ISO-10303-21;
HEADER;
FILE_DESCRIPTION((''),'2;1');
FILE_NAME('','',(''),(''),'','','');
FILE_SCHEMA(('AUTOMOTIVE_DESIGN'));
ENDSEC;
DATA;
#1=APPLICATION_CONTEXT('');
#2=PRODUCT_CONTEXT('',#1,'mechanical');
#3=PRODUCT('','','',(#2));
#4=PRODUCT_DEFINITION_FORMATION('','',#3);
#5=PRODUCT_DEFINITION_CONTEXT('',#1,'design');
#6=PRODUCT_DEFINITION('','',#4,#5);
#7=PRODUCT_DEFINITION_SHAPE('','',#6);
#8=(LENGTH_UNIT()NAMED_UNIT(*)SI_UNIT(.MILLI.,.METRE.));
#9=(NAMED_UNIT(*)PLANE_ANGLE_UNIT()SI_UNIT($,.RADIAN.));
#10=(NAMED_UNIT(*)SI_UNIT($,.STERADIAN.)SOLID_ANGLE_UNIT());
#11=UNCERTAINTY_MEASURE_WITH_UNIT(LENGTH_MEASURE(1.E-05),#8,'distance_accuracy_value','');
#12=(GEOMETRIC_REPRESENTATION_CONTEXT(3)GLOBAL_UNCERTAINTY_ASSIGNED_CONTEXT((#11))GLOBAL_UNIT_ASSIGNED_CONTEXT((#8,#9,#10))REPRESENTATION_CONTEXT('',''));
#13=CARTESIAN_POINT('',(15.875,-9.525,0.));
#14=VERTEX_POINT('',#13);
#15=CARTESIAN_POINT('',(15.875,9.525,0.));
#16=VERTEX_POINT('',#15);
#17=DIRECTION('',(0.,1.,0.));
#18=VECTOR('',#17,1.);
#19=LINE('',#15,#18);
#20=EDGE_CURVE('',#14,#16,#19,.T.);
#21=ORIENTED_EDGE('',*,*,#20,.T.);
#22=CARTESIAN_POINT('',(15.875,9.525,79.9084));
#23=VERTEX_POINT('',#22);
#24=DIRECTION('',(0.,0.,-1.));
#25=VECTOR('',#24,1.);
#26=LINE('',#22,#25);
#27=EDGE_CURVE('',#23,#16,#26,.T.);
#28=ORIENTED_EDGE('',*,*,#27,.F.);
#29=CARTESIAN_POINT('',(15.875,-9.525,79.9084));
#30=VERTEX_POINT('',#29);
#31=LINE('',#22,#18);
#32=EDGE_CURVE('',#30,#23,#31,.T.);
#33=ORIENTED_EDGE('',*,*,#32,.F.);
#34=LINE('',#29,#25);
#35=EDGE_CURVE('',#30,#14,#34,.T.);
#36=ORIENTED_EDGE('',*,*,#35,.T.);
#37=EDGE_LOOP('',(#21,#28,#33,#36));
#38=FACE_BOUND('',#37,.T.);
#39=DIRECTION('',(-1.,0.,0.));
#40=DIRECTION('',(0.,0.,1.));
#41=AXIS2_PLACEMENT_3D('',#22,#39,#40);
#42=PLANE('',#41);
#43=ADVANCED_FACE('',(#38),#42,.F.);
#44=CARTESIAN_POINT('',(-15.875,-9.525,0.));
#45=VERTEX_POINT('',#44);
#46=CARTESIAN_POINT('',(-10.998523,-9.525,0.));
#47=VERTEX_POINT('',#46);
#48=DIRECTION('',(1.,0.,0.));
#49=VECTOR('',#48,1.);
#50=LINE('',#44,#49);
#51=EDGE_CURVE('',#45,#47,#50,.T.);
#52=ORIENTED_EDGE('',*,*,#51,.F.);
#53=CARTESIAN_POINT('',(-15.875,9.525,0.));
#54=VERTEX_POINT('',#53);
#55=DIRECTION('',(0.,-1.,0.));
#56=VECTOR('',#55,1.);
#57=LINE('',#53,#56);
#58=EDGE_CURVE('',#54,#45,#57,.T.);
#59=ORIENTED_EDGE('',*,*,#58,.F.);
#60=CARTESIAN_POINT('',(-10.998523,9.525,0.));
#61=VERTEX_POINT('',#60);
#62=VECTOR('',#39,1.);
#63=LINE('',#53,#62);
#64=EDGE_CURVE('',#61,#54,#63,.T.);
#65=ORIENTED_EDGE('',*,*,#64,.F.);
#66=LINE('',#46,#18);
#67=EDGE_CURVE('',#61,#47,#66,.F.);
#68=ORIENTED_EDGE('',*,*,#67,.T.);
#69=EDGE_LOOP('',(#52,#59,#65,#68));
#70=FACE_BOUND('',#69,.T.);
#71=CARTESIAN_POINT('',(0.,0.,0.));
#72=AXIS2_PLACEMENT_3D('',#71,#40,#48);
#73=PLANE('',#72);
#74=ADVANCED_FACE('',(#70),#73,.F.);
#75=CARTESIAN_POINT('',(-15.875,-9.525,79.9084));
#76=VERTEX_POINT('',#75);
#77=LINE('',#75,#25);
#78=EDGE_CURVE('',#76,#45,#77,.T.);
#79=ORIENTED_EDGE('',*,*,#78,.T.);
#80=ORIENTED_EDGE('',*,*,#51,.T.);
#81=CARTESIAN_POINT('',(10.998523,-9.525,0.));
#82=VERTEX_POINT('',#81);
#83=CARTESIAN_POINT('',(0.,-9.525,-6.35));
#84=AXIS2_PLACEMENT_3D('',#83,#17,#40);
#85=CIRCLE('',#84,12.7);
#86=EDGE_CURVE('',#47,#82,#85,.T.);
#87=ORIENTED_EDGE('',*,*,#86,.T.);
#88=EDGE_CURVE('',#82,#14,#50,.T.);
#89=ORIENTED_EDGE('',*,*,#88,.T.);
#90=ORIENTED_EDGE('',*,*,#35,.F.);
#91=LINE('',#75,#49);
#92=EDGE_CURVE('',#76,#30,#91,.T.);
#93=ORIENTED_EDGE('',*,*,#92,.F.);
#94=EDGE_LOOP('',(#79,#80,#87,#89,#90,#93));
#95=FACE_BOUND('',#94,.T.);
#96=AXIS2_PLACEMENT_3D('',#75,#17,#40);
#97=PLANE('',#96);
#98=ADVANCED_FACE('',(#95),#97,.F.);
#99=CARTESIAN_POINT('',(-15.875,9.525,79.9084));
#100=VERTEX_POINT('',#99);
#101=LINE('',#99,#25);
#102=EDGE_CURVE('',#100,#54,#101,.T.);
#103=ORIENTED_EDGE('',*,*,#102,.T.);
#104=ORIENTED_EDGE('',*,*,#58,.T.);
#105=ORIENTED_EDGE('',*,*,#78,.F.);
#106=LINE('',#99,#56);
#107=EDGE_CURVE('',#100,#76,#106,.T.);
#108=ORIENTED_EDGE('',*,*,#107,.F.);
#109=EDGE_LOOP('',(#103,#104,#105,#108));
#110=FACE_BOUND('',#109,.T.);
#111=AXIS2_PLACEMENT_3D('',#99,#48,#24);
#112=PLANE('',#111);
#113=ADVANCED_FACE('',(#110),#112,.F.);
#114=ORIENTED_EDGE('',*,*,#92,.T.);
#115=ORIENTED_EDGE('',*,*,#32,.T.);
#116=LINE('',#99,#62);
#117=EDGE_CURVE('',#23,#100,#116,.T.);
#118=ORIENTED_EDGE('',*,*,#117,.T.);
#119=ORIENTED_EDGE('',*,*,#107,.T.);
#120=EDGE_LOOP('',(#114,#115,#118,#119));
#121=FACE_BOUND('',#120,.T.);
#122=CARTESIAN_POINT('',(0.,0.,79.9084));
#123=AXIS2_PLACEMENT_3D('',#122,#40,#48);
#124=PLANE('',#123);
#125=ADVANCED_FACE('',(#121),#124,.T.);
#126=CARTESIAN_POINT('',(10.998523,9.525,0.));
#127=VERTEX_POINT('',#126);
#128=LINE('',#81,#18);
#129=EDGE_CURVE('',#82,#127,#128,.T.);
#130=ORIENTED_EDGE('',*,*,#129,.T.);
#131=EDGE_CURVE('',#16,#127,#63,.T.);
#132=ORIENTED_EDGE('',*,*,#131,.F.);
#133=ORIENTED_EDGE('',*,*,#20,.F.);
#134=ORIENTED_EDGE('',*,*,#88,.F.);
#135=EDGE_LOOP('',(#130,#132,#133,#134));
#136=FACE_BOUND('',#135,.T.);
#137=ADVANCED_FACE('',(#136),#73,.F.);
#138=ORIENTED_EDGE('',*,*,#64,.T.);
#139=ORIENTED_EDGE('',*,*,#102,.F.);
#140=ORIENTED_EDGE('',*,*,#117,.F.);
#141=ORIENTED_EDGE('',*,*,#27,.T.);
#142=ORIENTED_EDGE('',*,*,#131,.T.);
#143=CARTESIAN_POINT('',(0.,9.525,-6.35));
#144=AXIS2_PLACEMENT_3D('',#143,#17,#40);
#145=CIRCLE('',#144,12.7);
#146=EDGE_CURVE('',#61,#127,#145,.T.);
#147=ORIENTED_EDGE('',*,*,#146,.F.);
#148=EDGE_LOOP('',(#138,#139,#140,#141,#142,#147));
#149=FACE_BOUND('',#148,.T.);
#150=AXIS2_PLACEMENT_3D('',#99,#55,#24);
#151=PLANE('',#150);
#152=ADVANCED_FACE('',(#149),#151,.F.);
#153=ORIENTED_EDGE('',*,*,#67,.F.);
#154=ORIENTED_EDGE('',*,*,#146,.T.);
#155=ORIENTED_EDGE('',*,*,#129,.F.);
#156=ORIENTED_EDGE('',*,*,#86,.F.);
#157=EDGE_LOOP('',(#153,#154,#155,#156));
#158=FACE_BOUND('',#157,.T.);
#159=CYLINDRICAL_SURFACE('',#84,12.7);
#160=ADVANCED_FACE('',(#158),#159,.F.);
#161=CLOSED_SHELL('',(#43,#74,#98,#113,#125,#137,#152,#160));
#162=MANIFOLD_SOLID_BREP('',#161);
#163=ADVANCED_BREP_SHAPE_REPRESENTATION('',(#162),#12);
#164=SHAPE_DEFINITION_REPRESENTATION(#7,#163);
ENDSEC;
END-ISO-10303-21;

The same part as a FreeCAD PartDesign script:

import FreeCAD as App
import Part
import Sketcher

V = App.Vector
Q = App.Units.Quantity

doc = App.newDocument("Part")
body = doc.addObject("PartDesign::Body", "Body")

# Sketch on XY plane
sketch1 = body.newObject("Sketcher::SketchObject", "Sketch")
sketch1.AttachmentSupport = (doc.getObject("XY_Plane"), [""])
sketch1.MapMode = "FlatFace"
sketch1.addGeometry([
    Part.LineSegment(V(-16, 10, 0), V(-16, -10, 0)),
    Part.LineSegment(V(-16, -10, 0), V(16, -10, 0)),
    Part.LineSegment(V(16, -10, 0), V(16, 10, 0)),
    Part.LineSegment(V(16, 10, 0), V(-16, 10, 0)),
], False)
sketch1.addConstraint([
    Sketcher.Constraint("Coincident", 0, 2, 1, 1),
    Sketcher.Constraint("Coincident", 1, 2, 2, 1),
    Sketcher.Constraint("Coincident", 2, 2, 3, 1),
    Sketcher.Constraint("Coincident", 3, 2, 0, 1),
    Sketcher.Constraint("Vertical", 0),
    Sketcher.Constraint("Horizontal", 1),
    Sketcher.Constraint("Vertical", 2),
    Sketcher.Constraint("Horizontal", 3),
    Sketcher.Constraint("Symmetric", 0, 2, 2, 2, -1, 1),
    Sketcher.Constraint("DistanceX", 1, 1, 1, 2, Q("1.25 in")),
    Sketcher.Constraint("DistanceY", 0, 2, 0, 1, Q("0.75 in")),
])
pad1 = body.newObject("PartDesign::Pad", "Pad")
pad1.Profile = sketch1
pad1.Length = Q("3.146 in")

# Sketch on XZ plane
sketch2 = body.newObject("Sketcher::SketchObject", "Sketch001")
sketch2.AttachmentSupport = (doc.getObject("XZ_Plane"), [""])
sketch2.MapMode = "FlatFace"
sketch2.AttachmentOffset = App.Placement(V(0, 0, -0.375 * 25.4), App.Rotation())
sketch2.addGeometry(Part.Circle(V(0, -6, 0), V(0, 0, 1), 13), False)
sketch2.addConstraint([
    Sketcher.Constraint("PointOnObject", 0, 3, -2),
    Sketcher.Constraint("Diameter", 0, Q("1 in")),
    Sketcher.Constraint("DistanceY", 0, 3, -1, 1, Q("0.25 in")),
])
pocket1 = body.newObject("PartDesign::Pocket", "Pocket")
pocket1.Profile = sketch2
pocket1.Type = "ThroughAll"
pocket1.Reversed = True

doc.recompute()
